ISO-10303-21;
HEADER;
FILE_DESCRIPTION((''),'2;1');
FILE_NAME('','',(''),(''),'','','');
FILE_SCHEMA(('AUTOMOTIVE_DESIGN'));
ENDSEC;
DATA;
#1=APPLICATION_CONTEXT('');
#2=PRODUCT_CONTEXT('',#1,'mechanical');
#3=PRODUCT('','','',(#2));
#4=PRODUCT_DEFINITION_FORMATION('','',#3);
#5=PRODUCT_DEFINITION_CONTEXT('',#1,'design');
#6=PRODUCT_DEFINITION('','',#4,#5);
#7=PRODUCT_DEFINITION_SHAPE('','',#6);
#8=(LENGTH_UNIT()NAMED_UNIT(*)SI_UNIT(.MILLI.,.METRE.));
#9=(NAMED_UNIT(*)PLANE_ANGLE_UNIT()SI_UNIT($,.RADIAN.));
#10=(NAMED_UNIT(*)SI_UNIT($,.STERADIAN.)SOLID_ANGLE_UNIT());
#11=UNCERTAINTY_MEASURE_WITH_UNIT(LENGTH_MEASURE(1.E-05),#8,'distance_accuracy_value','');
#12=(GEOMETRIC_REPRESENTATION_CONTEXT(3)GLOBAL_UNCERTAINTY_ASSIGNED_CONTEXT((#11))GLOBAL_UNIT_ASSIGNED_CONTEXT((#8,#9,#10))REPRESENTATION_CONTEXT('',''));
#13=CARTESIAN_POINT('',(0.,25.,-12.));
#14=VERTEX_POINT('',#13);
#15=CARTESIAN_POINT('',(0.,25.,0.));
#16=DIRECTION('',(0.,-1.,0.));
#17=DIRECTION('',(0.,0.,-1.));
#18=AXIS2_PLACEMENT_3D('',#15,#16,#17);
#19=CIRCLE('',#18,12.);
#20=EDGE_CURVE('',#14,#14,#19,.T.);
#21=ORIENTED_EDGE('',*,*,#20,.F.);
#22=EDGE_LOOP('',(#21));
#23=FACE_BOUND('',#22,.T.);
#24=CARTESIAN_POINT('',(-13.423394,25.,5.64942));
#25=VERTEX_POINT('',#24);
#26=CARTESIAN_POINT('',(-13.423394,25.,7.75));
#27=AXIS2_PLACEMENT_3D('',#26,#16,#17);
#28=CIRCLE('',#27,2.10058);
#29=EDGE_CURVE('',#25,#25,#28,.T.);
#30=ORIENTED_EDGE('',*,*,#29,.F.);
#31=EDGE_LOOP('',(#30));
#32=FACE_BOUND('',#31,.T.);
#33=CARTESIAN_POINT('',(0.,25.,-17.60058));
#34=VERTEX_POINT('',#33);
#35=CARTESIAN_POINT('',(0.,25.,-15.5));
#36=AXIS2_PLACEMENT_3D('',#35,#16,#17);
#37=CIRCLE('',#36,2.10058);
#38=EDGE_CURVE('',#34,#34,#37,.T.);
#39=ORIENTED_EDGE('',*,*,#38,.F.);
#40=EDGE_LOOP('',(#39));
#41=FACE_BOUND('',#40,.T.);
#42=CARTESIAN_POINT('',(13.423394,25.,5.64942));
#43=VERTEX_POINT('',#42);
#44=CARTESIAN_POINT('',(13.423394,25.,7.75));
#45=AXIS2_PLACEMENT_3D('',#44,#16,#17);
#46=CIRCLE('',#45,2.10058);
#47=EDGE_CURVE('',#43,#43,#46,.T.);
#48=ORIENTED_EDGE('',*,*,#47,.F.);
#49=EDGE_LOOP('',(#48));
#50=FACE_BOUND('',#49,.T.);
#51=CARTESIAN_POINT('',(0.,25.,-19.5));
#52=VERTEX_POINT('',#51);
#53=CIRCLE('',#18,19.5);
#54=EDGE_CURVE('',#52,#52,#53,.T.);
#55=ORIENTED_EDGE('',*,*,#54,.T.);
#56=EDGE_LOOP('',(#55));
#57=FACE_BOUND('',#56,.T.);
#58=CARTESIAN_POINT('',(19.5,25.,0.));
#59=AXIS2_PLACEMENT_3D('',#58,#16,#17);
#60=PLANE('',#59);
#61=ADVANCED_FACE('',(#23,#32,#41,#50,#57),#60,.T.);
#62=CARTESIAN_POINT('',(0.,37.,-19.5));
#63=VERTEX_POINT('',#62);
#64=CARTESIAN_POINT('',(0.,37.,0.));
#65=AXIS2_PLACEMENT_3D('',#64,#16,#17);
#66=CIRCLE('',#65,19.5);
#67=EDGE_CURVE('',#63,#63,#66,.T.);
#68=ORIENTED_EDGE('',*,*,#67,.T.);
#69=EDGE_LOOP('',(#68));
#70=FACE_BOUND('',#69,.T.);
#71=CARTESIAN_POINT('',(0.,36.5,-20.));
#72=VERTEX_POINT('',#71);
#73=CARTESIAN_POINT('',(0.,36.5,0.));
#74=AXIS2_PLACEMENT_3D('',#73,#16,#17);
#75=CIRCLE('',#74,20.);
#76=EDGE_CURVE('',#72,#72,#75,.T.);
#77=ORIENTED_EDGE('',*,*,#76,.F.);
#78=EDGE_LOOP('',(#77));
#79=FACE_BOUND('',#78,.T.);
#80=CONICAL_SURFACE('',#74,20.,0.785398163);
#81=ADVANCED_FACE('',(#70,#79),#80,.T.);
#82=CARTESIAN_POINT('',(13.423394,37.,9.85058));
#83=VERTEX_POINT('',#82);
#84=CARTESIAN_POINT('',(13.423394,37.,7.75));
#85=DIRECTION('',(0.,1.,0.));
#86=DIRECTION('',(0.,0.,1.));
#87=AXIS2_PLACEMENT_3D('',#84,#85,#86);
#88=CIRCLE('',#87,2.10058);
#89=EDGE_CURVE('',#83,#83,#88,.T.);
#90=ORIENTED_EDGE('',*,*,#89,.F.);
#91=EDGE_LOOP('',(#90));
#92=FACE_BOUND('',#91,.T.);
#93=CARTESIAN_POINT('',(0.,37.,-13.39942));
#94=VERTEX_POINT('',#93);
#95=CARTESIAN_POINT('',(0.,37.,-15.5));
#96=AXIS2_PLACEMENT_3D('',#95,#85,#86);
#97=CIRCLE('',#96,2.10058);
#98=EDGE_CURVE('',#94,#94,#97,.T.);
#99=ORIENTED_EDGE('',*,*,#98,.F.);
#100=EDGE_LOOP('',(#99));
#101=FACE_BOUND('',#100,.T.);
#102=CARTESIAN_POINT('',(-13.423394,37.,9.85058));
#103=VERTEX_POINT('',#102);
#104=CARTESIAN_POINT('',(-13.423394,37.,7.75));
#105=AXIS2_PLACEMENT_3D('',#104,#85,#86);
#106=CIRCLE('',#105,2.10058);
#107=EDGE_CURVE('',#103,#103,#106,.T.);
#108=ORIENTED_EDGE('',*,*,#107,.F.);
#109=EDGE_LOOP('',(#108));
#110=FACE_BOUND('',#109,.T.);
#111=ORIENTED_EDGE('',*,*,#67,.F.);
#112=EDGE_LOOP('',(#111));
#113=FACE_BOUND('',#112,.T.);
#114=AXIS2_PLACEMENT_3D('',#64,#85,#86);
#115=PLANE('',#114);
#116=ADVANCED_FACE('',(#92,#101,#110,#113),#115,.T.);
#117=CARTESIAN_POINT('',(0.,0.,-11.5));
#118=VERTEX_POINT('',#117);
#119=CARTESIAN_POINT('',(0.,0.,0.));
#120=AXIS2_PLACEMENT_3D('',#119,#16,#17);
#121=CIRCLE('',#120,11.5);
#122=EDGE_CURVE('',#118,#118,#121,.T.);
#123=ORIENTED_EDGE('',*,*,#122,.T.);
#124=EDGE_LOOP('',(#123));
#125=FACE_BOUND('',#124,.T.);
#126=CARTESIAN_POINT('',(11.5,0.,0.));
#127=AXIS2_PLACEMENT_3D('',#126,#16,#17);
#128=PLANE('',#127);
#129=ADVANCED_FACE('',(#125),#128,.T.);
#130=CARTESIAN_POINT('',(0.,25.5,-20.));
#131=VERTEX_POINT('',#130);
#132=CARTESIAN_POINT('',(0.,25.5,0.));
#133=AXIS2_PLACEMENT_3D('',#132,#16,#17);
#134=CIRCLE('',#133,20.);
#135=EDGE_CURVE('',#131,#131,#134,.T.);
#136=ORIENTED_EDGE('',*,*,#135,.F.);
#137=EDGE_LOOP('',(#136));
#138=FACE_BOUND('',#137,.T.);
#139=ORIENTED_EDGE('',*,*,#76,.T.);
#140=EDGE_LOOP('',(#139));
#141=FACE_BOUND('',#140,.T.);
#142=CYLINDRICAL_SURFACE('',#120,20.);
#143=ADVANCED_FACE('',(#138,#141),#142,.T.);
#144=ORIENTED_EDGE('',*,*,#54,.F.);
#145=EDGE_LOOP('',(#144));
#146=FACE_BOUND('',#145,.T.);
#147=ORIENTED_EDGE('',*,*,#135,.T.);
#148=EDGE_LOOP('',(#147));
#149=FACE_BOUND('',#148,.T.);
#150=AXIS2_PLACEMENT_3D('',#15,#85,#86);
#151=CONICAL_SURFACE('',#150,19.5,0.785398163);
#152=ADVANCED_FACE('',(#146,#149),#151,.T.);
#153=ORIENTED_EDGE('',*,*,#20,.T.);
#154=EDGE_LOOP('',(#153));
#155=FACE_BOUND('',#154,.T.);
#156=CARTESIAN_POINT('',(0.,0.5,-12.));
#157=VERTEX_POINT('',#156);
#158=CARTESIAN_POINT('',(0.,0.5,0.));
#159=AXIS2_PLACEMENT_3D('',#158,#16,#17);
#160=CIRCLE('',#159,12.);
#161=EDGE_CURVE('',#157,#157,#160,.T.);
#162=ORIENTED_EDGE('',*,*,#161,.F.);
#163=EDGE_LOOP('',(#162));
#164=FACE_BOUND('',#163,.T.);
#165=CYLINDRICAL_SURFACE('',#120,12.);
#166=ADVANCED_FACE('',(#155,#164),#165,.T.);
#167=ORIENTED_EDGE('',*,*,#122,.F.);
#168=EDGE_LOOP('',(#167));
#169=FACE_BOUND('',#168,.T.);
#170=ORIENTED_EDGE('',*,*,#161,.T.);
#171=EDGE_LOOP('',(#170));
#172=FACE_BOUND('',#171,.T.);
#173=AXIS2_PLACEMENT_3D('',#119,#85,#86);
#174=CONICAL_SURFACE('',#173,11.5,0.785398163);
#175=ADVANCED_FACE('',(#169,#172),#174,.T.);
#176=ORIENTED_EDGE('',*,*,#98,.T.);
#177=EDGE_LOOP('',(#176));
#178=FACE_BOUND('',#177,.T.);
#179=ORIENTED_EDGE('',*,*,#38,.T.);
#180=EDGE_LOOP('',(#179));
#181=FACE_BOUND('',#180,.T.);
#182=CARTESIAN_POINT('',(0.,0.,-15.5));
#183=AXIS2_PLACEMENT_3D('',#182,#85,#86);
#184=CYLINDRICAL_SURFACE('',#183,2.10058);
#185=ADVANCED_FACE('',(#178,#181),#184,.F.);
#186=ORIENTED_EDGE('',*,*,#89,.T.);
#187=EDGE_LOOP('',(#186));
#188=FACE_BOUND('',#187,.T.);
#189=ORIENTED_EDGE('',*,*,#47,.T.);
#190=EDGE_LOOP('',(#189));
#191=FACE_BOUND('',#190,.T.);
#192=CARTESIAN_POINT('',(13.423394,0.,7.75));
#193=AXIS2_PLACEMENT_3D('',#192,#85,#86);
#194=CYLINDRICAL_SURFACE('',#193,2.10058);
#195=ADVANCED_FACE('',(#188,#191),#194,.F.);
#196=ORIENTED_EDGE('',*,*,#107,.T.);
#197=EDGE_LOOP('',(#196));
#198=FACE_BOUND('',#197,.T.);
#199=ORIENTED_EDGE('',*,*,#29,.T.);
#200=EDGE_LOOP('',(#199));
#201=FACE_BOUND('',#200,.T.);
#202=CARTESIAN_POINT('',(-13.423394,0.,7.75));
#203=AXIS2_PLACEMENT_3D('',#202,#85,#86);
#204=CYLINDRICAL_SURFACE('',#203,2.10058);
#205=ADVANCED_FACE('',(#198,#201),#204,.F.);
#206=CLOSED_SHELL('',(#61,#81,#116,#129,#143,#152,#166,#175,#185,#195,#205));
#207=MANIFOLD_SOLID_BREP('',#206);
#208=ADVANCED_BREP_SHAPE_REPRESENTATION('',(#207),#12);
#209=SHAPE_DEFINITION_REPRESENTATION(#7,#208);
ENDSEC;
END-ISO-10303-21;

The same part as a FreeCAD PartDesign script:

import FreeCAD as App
import Part
import Sketcher
from FreeCAD import Vector


def add_polygon(sketch, points):
    """Adds a closed chain of lines whose ends are joined by coincident constraints."""
    first, n = sketch.GeometryCount, len(points)
    for a, b in zip(points, points[1:] + points[:1]):
        sketch.addGeometry(Part.LineSegment(App.Vector(*a, 0), App.Vector(*b, 0)), False)
    for i in range(n):
        sketch.addConstraint(Sketcher.Constraint("Coincident", first + i, 2, first + (i + 1) % n, 1))

doc = App.newDocument("Part")
params = doc.addObject("Spreadsheet::Sheet", "Params")
for row, (alias, value) in enumerate([
    ("sketch1_height", "37 mm"),
    ("sketch1_height2", "11 mm"),
    ("sketch1_width", "11.5 mm"),
    ("sketch1_width2", "7.5 mm"),
    ("sketch1_width3", "19.5 mm"),
    ("revolution_angle", "360 deg"),
], start=1):
    params.set(f"A{row}", alias)
    params.set(f"B{row}", "=" + value)
    params.setAlias(f"B{row}", alias)

body = doc.addObject("PartDesign::Body", "Body")

sketch1 = body.newObject("Sketcher::SketchObject", "Sketch")
sketch1.AttachmentSupport = (doc.getObject("XY_Plane"), [""])
sketch1.MapMode = "FlatFace"
add_polygon(sketch1, [(0, 37), (0, 0), (11.5, 0), (12, 0.5), (12, 25), (19.5, 25), (20, 25.5), (20, 36.5), (19.5, 37)])
sketch1.addConstraint(Sketcher.Constraint("Vertical", 0))
sketch1.addConstraint(Sketcher.Constraint("Horizontal", 1))
sketch1.addConstraint(Sketcher.Constraint("Vertical", 3))
sketch1.addConstraint(Sketcher.Constraint("Horizontal", 4))
sketch1.addConstraint(Sketcher.Constraint("Vertical", 6))
sketch1.addConstraint(Sketcher.Constraint("Horizontal", 8))
sketch1.addConstraint(Sketcher.Constraint("Coincident", 0, 2, -1, 1))
sketch1.addConstraint(Sketcher.Constraint("Parallel", 2, 5))
sketch1.addConstraint(Sketcher.Constraint("Perpendicular", 5, 7))
sketch1.addConstraint(Sketcher.Constraint("Vertical", 4, 2, 7, 2))
sketch1.addConstraint(Sketcher.Constraint("Equal", 2, 5))
sketch1.addConstraint(Sketcher.Constraint("Equal", 5, 7))
sketch1.addConstraint(Sketcher.Constraint("DistanceY", 0, 2, 0, 1, 37.0))
sketch1.addConstraint(Sketcher.Constraint("DistanceY", 6, 1, 6, 2, 11.0))
sketch1.addConstraint(Sketcher.Constraint("DistanceX", 1, 1, 1, 2, 11.5))
sketch1.addConstraint(Sketcher.Constraint("DistanceX", 4, 1, 4, 2, 7.5))
sketch1.addConstraint(Sketcher.Constraint("DistanceX", 8, 2, 8, 1, 19.5))
sketch1.setExpression("Constraints[21]", "Params.sketch1_height")
sketch1.setExpression("Constraints[22]", "Params.sketch1_height2")
sketch1.setExpression("Constraints[23]", "Params.sketch1_width")
sketch1.setExpression("Constraints[24]", "Params.sketch1_width2")
sketch1.setExpression("Constraints[25]", "Params.sketch1_width3")
revolution = body.newObject("PartDesign::Revolution", "Revolution")
revolution.Profile = sketch1
revolution.ReferenceAxis = (sketch1, ["V_Axis"])
revolution.setExpression("Angle", "Params.revolution_angle")

sketch2 = body.newObject("Sketcher::SketchObject", "Sketch001")
sketch2.AttachmentSupport = (doc.getObject("XZ_Plane"), [""])
sketch2.MapMode = "FlatFace"
sketch2.AttachmentOffset = App.Placement(Vector(0, 0, -37), App.Rotation())
sketch2.addGeometry(Part.Circle(Vector(0, -15.5, 0), Vector(0, 0, 1), 2.1), False)
sketch2.addGeometry(Part.Circle(Vector(13.4, 7.8, 0), Vector(0, 0, 1), 2.1), False)
sketch2.addGeometry(Part.Circle(Vector(-13.4, 7.8, 0), Vector(0, 0, 1), 2.1), False)
sketch2.addConstraint(Sketcher.Constraint("Equal", 0, 1))
sketch2.addConstraint(Sketcher.Constraint("Equal", 1, 2))
sketch2.addConstraint(Sketcher.Constraint("Symmetric", 1, 3, 2, 3, -2))
sketch2.addConstraint(Sketcher.Constraint("PointOnObject", 0, 3, -2))
sketch2.addConstraint(Sketcher.Constraint("DistanceY", 0, 3, -1, 1, 15.5))
sketch2.addConstraint(Sketcher.Constraint("Diameter", 0, 4.20116))
sketch2.addConstraint(Sketcher.Constraint("DistanceY", -1, 1, 1, 3, 7.75))
sketch2.addConstraint(Sketcher.Constraint("DistanceX", -1, 1, 1, 3, 13.423394))
pocket1 = body.newObject("PartDesign::Pocket", "Pocket")
pocket1.Profile = sketch2
pocket1.Type = "ThroughAll"
pocket1.Reversed = True

doc.recompute()
